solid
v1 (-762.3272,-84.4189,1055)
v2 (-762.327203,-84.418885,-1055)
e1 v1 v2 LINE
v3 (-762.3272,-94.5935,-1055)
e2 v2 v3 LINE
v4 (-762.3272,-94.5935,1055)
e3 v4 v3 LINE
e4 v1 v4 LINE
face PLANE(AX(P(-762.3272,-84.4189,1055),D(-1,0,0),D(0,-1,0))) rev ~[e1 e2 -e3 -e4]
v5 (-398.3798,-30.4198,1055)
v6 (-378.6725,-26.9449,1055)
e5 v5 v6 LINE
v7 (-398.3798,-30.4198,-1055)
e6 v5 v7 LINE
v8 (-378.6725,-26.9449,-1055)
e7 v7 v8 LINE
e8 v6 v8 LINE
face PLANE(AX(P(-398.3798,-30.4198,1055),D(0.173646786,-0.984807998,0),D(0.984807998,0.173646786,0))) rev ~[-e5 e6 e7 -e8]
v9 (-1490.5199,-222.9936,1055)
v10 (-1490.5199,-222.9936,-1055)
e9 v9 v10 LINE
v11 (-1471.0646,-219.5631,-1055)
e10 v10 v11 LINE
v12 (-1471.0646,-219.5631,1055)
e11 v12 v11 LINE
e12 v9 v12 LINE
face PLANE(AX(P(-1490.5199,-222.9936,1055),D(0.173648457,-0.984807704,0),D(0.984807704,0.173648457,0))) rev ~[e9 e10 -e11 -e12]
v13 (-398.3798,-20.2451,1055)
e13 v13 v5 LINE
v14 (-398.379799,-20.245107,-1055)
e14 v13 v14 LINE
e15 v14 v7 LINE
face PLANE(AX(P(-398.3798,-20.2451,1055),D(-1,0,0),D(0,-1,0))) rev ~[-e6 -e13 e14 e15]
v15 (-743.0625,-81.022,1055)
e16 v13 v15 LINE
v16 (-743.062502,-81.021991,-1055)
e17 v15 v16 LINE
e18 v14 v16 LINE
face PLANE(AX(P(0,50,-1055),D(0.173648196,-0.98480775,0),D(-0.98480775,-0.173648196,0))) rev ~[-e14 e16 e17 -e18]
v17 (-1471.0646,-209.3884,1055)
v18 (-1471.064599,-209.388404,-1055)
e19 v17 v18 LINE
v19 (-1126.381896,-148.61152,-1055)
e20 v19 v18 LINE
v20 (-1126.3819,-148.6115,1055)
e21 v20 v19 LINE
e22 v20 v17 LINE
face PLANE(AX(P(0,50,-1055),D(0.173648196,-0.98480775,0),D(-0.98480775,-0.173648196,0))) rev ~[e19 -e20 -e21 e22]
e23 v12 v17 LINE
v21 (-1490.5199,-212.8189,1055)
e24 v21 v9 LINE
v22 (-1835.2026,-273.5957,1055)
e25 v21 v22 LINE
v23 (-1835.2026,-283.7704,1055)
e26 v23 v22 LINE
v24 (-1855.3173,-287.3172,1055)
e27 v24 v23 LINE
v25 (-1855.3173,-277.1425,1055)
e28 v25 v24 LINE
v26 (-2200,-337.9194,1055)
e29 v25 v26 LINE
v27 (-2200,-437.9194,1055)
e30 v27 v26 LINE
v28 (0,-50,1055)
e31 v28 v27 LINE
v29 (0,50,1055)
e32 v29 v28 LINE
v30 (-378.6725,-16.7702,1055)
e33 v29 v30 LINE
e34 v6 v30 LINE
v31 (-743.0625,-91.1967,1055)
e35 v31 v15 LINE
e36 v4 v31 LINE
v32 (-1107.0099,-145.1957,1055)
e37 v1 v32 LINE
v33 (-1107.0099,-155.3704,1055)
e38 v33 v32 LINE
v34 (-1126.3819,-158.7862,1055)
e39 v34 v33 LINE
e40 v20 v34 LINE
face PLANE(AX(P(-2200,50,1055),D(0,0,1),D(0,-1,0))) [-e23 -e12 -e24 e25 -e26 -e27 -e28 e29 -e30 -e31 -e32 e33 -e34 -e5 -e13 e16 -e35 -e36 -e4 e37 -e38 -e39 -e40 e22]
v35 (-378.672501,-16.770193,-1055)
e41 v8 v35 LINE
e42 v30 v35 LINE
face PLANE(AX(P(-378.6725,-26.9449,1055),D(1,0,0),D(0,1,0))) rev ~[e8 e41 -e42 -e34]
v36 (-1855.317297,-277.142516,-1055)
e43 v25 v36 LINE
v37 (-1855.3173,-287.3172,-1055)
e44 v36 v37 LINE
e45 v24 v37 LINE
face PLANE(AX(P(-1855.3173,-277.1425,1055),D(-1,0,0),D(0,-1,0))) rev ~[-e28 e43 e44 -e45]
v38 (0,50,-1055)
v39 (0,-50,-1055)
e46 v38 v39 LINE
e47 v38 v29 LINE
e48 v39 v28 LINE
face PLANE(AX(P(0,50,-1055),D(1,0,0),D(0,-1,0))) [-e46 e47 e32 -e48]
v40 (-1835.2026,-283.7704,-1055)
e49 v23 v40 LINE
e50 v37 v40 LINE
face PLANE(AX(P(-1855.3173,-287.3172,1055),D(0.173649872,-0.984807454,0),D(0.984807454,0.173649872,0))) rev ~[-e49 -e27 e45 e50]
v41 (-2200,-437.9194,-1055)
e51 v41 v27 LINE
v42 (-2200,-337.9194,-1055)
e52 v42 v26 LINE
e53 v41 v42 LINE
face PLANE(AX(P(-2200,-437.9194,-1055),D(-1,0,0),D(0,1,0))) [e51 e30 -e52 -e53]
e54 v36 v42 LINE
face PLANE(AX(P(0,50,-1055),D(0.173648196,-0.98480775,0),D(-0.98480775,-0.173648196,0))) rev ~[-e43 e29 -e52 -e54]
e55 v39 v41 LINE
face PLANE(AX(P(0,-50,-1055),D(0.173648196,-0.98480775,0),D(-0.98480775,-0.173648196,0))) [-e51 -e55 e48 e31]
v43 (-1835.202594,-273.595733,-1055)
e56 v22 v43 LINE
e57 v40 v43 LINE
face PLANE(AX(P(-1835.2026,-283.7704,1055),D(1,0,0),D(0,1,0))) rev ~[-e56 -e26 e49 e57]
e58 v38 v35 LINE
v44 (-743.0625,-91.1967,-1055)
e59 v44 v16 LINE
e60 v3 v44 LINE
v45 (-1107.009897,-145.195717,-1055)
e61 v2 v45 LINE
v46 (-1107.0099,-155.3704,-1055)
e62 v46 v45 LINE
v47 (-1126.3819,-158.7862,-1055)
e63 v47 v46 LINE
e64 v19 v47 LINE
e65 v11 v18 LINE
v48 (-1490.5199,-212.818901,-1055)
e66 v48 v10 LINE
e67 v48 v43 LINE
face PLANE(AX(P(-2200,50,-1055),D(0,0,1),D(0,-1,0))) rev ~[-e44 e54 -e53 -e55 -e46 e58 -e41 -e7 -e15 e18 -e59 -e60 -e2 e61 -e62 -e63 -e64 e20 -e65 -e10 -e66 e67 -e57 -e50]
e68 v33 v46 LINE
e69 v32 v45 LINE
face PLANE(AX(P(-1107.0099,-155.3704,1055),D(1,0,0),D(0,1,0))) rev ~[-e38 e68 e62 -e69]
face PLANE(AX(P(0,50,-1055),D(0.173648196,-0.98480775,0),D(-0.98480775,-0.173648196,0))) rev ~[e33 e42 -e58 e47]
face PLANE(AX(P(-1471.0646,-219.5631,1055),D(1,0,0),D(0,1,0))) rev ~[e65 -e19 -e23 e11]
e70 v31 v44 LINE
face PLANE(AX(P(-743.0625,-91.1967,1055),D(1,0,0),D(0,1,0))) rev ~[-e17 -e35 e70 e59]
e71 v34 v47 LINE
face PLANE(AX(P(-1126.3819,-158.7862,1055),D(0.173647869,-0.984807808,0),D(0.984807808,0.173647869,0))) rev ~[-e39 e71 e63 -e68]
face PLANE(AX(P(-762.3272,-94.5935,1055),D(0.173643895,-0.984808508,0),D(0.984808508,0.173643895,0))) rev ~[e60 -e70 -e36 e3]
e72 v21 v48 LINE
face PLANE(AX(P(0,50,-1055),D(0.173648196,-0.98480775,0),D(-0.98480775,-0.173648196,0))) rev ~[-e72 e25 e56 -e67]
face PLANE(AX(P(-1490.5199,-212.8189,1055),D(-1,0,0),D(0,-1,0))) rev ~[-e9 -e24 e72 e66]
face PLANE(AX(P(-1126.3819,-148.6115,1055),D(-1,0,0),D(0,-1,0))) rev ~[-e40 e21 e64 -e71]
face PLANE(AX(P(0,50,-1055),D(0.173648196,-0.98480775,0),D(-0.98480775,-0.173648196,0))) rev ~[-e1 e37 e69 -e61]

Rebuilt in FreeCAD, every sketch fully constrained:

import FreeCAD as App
import Part
import Sketcher
from FreeCAD import Vector
Q = App.Units.Quantity

doc = App.newDocument("Part")
body = doc.addObject("PartDesign::Body", "Body")

# Sketch on XY plane
sketch1 = body.newObject("Sketcher::SketchObject", "Sketch")
sketch1.AttachmentSupport = (doc.getObject("XY_Plane"), [""])
sketch1.MapMode = "FlatFace"
sketch1.AttachmentOffset = App.Placement(Vector(0, 0, -1055), App.Rotation())
sketch1.addGeometry([
    Part.LineSegment(Vector(0, -50, 0), Vector(0, 50, 0)),
    Part.LineSegment(Vector(0, 50, 0), Vector(-2200, -338, 0)),
    Part.LineSegment(Vector(-2200, -338, 0), Vector(-2200, -438, 0)),
    Part.LineSegment(Vector(-2200, -438, 0), Vector(0, -50, 0)),
], False)
sketch1.addConstraint([
    Sketcher.Constraint("Coincident", 0, 2, 1, 1),
    Sketcher.Constraint("Coincident", 1, 2, 2, 1),
    Sketcher.Constraint("Coincident", 2, 2, 3, 1),
    Sketcher.Constraint("Coincident", 3, 2, 0, 1),
    Sketcher.Constraint("Vertical", 0),
    Sketcher.Constraint("Vertical", 2),
    Sketcher.Constraint("Symmetric", 0, 2, 3, 2, -1, 1),
    Sketcher.Constraint("Parallel", 1, 3),
    Sketcher.Constraint("DistanceY", 0, 1, 0, 2, 100.0),
    Sketcher.Constraint("Angle", 1, Q("-170 deg")),
    Sketcher.Constraint("DistanceX", 1, 2, -1, 1, 2200.0),
])
pad1 = body.newObject("PartDesign::Pad", "Pad")
pad1.Profile = sketch1
pad1.Length = 2110

# Sketch on XY plane
sketch2 = body.newObject("Sketcher::SketchObject", "Sketch001")
sketch2.AttachmentSupport = (doc.getObject("XY_Plane"), [""])
sketch2.MapMode = "FlatFace"
sketch2.AttachmentOffset = App.Placement(Vector(0, 0, 1055), App.Rotation())
sketch2.addGeometry([
    Part.LineSegment(Vector(-379, -27, 0), Vector(-379, -17, 0)),  # 0
    Part.LineSegment(Vector(-379, -17, 0), Vector(-398, -20, 0)),  # 1
    Part.LineSegment(Vector(-398, -20, 0), Vector(-398, -30, 0)),  # 2
    Part.LineSegment(Vector(-398, -30, 0), Vector(-379, -27, 0)),  # 3
    Part.LineSegment(Vector(-1835, -284, 0), Vector(-1835, -274, 0)),  # 4
    Part.LineSegment(Vector(-1835, -274, 0), Vector(-1855, -277, 0)),  # 5
    Part.LineSegment(Vector(-1855, -277, 0), Vector(-1855, -287, 0)),  # 6
    Part.LineSegment(Vector(-1855, -287, 0), Vector(-1835, -284, 0)),  # 7
    Part.LineSegment(Vector(-1471, -220, 0), Vector(-1471, -209, 0)),  # 8
    Part.LineSegment(Vector(-1471, -209, 0), Vector(-1491, -213, 0)),  # 9
    Part.LineSegment(Vector(-1491, -213, 0), Vector(-1491, -223, 0)),  # 10
    Part.LineSegment(Vector(-1491, -223, 0), Vector(-1471, -220, 0)),  # 11
    Part.LineSegment(Vector(-1107, -155, 0), Vector(-1107, -145, 0)),  # 12
    Part.LineSegment(Vector(-1107, -145, 0), Vector(-1126, -149, 0)),  # 13
    Part.LineSegment(Vector(-1126, -149, 0), Vector(-1126, -159, 0)),  # 14
    Part.LineSegment(Vector(-1126, -159, 0), Vector(-1107, -155, 0)),  # 15
    Part.LineSegment(Vector(-743, -91, 0), Vector(-743, -81, 0)),  # 16
    Part.LineSegment(Vector(-743, -81, 0), Vector(-762, -84, 0)),  # 17
    Part.LineSegment(Vector(-762, -84, 0), Vector(-762, -95, 0)),  # 18
    Part.LineSegment(Vector(-762, -95, 0), Vector(-743, -91, 0)),  # 19
], False)
sketch2.addConstraint([
    Sketcher.Constraint("Coincident", 0, 2, 1, 1),
    Sketcher.Constraint("Coincident", 1, 2, 2, 1),
    Sketcher.Constraint("Coincident", 2, 2, 3, 1),
    Sketcher.Constraint("Coincident", 3, 2, 0, 1),
    Sketcher.Constraint("Coincident", 4, 2, 5, 1),
    Sketcher.Constraint("Coincident", 5, 2, 6, 1),
    Sketcher.Constraint("Coincident", 6, 2, 7, 1),
    Sketcher.Constraint("Coincident", 7, 2, 4, 1),
    Sketcher.Constraint("Coincident", 8, 2, 9, 1),
    Sketcher.Constraint("Coincident", 9, 2, 10, 1),
    Sketcher.Constraint("Coincident", 10, 2, 11, 1),
    Sketcher.Constraint("Coincident", 11, 2, 8, 1),
    Sketcher.Constraint("Coincident", 12, 2, 13, 1),
    Sketcher.Constraint("Coincident", 13, 2, 14, 1),
    Sketcher.Constraint("Coincident", 14, 2, 15, 1),
    Sketcher.Constraint("Coincident", 15, 2, 12, 1),
    Sketcher.Constraint("Coincident", 16, 2, 17, 1),
    Sketcher.Constraint("Coincident", 17, 2, 18, 1),
    Sketcher.Constraint("Coincident", 18, 2, 19, 1),
    Sketcher.Constraint("Coincident", 19, 2, 16, 1),
    Sketcher.Constraint("Vertical", 0),
    Sketcher.Constraint("Vertical", 2),
    Sketcher.Constraint("Vertical", 4),
    Sketcher.Constraint("Vertical", 6),
    Sketcher.Constraint("Vertical", 8),
    Sketcher.Constraint("Vertical", 10),
    Sketcher.Constraint("Vertical", 12),
    Sketcher.Constraint("Vertical", 14),
    Sketcher.Constraint("Vertical", 16),
    Sketcher.Constraint("Vertical", 18),
    Sketcher.Constraint("Parallel", 1, 3),
    Sketcher.Constraint("Parallel", 3, 5),
    Sketcher.Constraint("Parallel", 5, 7),
    Sketcher.Constraint("Parallel", 7, 9),
    Sketcher.Constraint("Parallel", 9, 11),
    Sketcher.Constraint("Parallel", 11, 13),
    Sketcher.Constraint("Parallel", 13, 15),
    Sketcher.Constraint("Parallel", 15, 17),
    Sketcher.Constraint("Parallel", 17, 19),
    Sketcher.Constraint("Equal", 2, 4),
    Sketcher.Constraint("Equal", 6, 8),
    Sketcher.Constraint("Equal", 10, 12),
    Sketcher.Constraint("Equal", 14, 16),
    Sketcher.Constraint("Angle", 1, Q("-170 deg")),
    Sketcher.Constraint("DistanceX", 9, 2, -1, 1, 1490.52),
    Sketcher.Constraint("DistanceX", 12, 2, -1, 1, 1107.01),
    Sketcher.Constraint("DistanceX", 4, 2, 3, 2, 1456.53),
    Sketcher.Constraint("DistanceX", 12, 2, 2, 2, 708.63),
    Sketcher.Constraint("DistanceX", 16, 2, 3, 2, 364.39),
    Sketcher.Constraint("Distance", 5, 20.425),
    Sketcher.Constraint("Distance", 17, 19.562),
    Sketcher.Constraint("DistanceY", 0, 1, 0, 2, 10.1747),
    Sketcher.Constraint("DistanceY", 1, 2, -1, 1, 20.245),
    Sketcher.Constraint("DistanceY", 3, 2, -1, 1, 26.945),
    Sketcher.Constraint("DistanceY", 9, 2, -1, 1, 212.819),
    Sketcher.Constraint("DistanceY", 11, 2, -1, 1, 219.563),
    Sketcher.Constraint("DistanceX", 13, 2, -1, 1, 1126.382),
    Sketcher.Constraint("DistanceY", 16, 2, -1, 1, 81.022),
    Sketcher.Constraint("DistanceY", 4, 2, 2, 2, 243.176),
    Sketcher.Constraint("DistanceY", 10, 2, 12, 2, 77.798),
])
pocket1 = body.newObject("PartDesign::Pocket", "Pocket")
pocket1.Profile = sketch2
pocket1.Type = "ThroughAll"

doc.recompute()
